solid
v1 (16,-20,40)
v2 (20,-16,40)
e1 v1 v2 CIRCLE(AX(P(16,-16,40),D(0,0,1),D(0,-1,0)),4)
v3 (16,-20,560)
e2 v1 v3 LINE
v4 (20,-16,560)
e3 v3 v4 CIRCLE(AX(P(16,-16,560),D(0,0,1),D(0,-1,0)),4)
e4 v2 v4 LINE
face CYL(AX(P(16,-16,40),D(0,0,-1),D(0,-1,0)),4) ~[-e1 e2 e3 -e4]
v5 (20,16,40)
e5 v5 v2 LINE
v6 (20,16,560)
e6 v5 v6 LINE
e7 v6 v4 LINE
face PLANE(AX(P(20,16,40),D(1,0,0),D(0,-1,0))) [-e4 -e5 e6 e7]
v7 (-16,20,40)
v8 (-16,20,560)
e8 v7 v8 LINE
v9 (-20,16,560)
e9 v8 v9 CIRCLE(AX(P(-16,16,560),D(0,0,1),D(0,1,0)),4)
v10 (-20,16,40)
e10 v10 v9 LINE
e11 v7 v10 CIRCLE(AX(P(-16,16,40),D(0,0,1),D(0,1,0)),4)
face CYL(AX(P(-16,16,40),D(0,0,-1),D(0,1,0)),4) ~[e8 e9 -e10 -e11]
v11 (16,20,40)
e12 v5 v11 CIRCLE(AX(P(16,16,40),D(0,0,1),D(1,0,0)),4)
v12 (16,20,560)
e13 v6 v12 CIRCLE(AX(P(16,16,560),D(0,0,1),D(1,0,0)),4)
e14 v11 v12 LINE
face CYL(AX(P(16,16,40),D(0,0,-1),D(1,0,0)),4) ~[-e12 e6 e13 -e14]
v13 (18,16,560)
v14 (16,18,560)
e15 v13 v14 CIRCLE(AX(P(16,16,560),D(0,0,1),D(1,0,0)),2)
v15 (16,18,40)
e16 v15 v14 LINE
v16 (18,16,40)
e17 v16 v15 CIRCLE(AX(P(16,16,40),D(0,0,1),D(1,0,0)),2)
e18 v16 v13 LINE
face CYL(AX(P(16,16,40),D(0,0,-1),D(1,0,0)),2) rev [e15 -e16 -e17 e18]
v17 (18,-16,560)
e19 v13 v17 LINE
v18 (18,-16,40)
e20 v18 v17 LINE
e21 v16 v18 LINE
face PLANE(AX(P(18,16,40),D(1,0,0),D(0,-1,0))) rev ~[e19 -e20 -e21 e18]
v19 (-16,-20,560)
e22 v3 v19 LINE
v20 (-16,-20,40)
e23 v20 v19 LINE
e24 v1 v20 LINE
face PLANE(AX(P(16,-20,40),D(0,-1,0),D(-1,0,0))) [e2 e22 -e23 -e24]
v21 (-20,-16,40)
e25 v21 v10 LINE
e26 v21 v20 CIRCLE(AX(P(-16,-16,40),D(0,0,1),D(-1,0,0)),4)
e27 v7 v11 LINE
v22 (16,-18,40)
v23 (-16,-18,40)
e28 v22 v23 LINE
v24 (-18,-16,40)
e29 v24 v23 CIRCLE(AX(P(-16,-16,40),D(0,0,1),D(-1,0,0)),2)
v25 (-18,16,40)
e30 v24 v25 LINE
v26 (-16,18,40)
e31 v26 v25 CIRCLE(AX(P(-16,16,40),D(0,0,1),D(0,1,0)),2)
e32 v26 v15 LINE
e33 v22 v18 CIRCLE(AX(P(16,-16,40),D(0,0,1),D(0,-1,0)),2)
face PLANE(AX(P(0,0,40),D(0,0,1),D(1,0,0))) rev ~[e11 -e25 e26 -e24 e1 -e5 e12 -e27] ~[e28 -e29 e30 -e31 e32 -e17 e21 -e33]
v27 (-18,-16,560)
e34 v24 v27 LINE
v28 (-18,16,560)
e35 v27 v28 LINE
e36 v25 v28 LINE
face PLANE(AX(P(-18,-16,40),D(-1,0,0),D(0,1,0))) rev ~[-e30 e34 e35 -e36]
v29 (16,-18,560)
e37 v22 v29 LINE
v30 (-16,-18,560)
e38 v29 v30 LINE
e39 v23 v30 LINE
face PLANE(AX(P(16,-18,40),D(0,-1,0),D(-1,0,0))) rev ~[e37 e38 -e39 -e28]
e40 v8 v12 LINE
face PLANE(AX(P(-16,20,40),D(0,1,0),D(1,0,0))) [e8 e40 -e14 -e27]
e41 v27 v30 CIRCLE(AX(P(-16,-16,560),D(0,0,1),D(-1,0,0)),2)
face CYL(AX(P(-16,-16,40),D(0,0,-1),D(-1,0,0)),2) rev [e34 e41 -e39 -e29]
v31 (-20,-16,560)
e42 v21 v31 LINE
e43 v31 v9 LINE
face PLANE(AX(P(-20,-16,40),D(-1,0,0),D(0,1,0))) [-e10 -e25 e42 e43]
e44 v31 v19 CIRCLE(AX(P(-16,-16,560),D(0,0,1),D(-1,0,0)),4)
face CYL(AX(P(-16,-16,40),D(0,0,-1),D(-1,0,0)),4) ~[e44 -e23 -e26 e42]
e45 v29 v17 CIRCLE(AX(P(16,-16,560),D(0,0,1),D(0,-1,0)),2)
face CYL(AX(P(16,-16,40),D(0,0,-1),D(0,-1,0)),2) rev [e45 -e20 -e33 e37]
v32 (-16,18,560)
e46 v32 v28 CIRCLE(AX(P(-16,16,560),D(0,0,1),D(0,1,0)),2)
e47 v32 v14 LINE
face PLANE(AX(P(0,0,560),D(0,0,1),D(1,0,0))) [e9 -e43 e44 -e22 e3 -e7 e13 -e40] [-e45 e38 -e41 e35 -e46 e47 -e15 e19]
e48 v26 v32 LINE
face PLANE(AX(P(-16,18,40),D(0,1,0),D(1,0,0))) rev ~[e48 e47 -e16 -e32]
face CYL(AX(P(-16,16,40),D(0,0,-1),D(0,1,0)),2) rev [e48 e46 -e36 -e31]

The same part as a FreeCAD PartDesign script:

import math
import FreeCAD as App
import Part
import Sketcher
Q = App.Units.Quantity

doc = App.newDocument("Part")
body = doc.addObject("PartDesign::Body", "Body")

# Sketch on XY plane
sketch1 = body.newObject("Sketcher::SketchObject", "Sketch")
sketch1.AttachmentSupport = (doc.getObject("XY_Plane"), [""])
sketch1.MapMode = "FlatFace"
sketch1.AttachmentOffset = App.Placement(App.Vector(0, 0, 40), App.Rotation())
sketch1.addGeometry([
    Part.LineSegment(App.Vector(-20, 16, 0), App.Vector(-20, -16, 0)),  # 0
    Part.ArcOfCircle(Part.Circle(App.Vector(-16, -16, 0), App.Vector(0, 0, 1), 4), math.radians(180), math.radians(270)),  # 1
    Part.LineSegment(App.Vector(-16, -20, 0), App.Vector(16, -20, 0)),  # 2
    Part.ArcOfCircle(Part.Circle(App.Vector(16, -16, 0), App.Vector(0, 0, 1), 4), math.radians(-90), math.radians(0)),  # 3
    Part.LineSegment(App.Vector(20, -16, 0), App.Vector(20, 16, 0)),  # 4
    Part.ArcOfCircle(Part.Circle(App.Vector(16, 16, 0), App.Vector(0, 0, 1), 4), math.radians(0), math.radians(90)),  # 5
    Part.LineSegment(App.Vector(16, 20, 0), App.Vector(-16, 20, 0)),  # 6
    Part.ArcOfCircle(Part.Circle(App.Vector(-16, 16, 0), App.Vector(0, 0, 1), 4), math.radians(90), math.radians(180)),  # 7
    Part.ArcOfCircle(Part.Circle(App.Vector(-16, 16, 0), App.Vector(0, 0, 1), 2), math.radians(90), math.radians(180)),  # 8
    Part.LineSegment(App.Vector(-16, 18, 0), App.Vector(16, 18, 0)),  # 9
    Part.ArcOfCircle(Part.Circle(App.Vector(16, 16, 0), App.Vector(0, 0, 1), 2), math.radians(0), math.radians(90)),  # 10
    Part.LineSegment(App.Vector(18, 16, 0), App.Vector(18, -16, 0)),  # 11
    Part.ArcOfCircle(Part.Circle(App.Vector(16, -16, 0), App.Vector(0, 0, 1), 2), math.radians(-90), math.radians(0)),  # 12
    Part.LineSegment(App.Vector(16, -18, 0), App.Vector(-16, -18, 0)),  # 13
    Part.ArcOfCircle(Part.Circle(App.Vector(-16, -16, 0), App.Vector(0, 0, 1), 2), math.radians(180), math.radians(270)),  # 14
    Part.LineSegment(App.Vector(-18, -16, 0), App.Vector(-18, 16, 0)),  # 15
], False)
sketch1.addConstraint([
    Sketcher.Constraint("Tangent", 0, 2, 1, 1),
    Sketcher.Constraint("Tangent", 1, 2, 2, 1),
    Sketcher.Constraint("Tangent", 2, 2, 3, 1),
    Sketcher.Constraint("Tangent", 3, 2, 4, 1),
    Sketcher.Constraint("Tangent", 4, 2, 5, 1),
    Sketcher.Constraint("Tangent", 5, 2, 6, 1),
    Sketcher.Constraint("Tangent", 6, 2, 7, 1),
    Sketcher.Constraint("Tangent", 7, 2, 0, 1),
    Sketcher.Constraint("Tangent", 8, 1, 9, 1),
    Sketcher.Constraint("Tangent", 9, 2, 10, 2),
    Sketcher.Constraint("Tangent", 10, 1, 11, 1),
    Sketcher.Constraint("Tangent", 11, 2, 12, 2),
    Sketcher.Constraint("Tangent", 12, 1, 13, 1),
    Sketcher.Constraint("Tangent", 13, 2, 14, 2),
    Sketcher.Constraint("Tangent", 14, 1, 15, 1),
    Sketcher.Constraint("Tangent", 15, 2, 8, 2),
    Sketcher.Constraint("Vertical", 0),
    Sketcher.Constraint("Horizontal", 2),
    Sketcher.Constraint("Vertical", 4),
    Sketcher.Constraint("Horizontal", 6),
    Sketcher.Constraint("Horizontal", 9),
    Sketcher.Constraint("Vertical", 11),
    Sketcher.Constraint("Horizontal", 13),
    Sketcher.Constraint("Vertical", 15),
    Sketcher.Constraint("Coincident", 8, 3, 7, 3),
    Sketcher.Constraint("Coincident", 10, 3, 5, 3),
    Sketcher.Constraint("Coincident", 12, 3, 3, 3),
    Sketcher.Constraint("Equal", 1, 3),
    Sketcher.Constraint("Equal", 3, 5),
    Sketcher.Constraint("Equal", 5, 7),
    Sketcher.Constraint("Equal", 12, 14),
    Sketcher.Constraint("Symmetric", 1, 3, 5, 3, -1, 1),
    Sketcher.Constraint("Equal", 13, 0),
    Sketcher.Constraint("Radius", 1, Q("4 mm")),
    Sketcher.Constraint("Radius", 8, Q("2 mm")),
    Sketcher.Constraint("DistanceX", 0, 2, -1, 1, Q("20 mm")),
])
pad1 = body.newObject("PartDesign::Pad", "Pad")
pad1.Profile = sketch1
pad1.Length = 520

doc.recompute()
